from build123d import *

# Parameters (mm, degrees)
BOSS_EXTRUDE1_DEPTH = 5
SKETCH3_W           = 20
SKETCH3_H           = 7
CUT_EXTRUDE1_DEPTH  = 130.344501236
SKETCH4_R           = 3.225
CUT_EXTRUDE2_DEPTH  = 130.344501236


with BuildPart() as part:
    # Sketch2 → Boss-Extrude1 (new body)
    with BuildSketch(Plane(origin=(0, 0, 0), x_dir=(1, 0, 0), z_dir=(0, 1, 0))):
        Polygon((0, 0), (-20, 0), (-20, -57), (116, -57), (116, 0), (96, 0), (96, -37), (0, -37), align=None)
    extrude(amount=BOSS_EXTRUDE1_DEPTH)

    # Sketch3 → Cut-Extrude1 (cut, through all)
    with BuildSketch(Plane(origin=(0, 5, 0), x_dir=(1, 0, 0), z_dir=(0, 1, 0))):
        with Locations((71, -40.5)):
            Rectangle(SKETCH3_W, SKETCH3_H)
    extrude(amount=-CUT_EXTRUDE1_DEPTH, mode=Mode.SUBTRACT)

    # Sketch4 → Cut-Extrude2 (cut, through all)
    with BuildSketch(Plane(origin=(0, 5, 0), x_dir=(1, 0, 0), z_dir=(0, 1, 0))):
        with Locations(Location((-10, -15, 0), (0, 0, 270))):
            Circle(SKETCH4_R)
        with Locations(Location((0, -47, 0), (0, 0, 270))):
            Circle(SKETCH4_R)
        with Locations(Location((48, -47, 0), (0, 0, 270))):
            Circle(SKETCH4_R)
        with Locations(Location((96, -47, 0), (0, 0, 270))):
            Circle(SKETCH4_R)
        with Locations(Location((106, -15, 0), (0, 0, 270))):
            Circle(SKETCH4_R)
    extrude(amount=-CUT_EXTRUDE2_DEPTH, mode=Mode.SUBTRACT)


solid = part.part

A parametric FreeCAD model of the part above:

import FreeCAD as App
import Part
import Sketcher
from FreeCAD import Vector
Q = App.Units.Quantity


def add_polygon(sketch, points):
    """Adds a closed chain of lines whose ends are joined by coincident constraints."""
    first, n = sketch.GeometryCount, len(points)
    for a, b in zip(points, points[1:] + points[:1]):
        sketch.addGeometry(Part.LineSegment(App.Vector(*a, 0), App.Vector(*b, 0)), False)
    for i in range(n):
        sketch.addConstraint(Sketcher.Constraint("Coincident", first + i, 2, first + (i + 1) % n, 1))

doc = App.newDocument("Part")
body = doc.addObject("PartDesign::Body", "Body")

# Sketch on XZ plane
sketch1 = body.newObject("Sketcher::SketchObject", "Sketch")
sketch1.AttachmentSupport = (doc.getObject("XZ_Plane"), [""])
sketch1.MapMode = "FlatFace"
add_polygon(sketch1, [(0, 0), (-20, 0), (-20, 57), (116, 57), (116, 0), (96, 0), (96, 37), (0, 37)])  # lines 0-7
sketch1.addConstraint([
    Sketcher.Constraint("Horizontal", 0),
    Sketcher.Constraint("Vertical", 1),
    Sketcher.Constraint("Horizontal", 2),
    Sketcher.Constraint("Vertical", 3),
    Sketcher.Constraint("Horizontal", 4),
    Sketcher.Constraint("Vertical", 5),
    Sketcher.Constraint("Horizontal", 6),
    Sketcher.Constraint("Vertical", 7),
    Sketcher.Constraint("Coincident", 7, 2, -1, 1),
    Sketcher.Constraint("PointOnObject", 3, 2, -1),
    Sketcher.Constraint("Equal", 0, 4),
    Sketcher.Constraint("DistanceX", 0, 2, 0, 1, Q("20 mm")),
    Sketcher.Constraint("DistanceX", 2, 1, 2, 2, Q("136 mm")),
    Sketcher.Constraint("DistanceY", 1, 1, 1, 2, Q("57 mm")),
    Sketcher.Constraint("DistanceY", 5, 1, 5, 2, Q("37 mm")),
])
pad1 = body.newObject("PartDesign::Pad", "Pad")
pad1.Profile = sketch1
pad1.Length = 5
pad1.Reversed = True

# Sketch on XZ plane
sketch2 = body.newObject("Sketcher::SketchObject", "Sketch001")
sketch2.AttachmentSupport = (doc.getObject("XZ_Plane"), [""])
sketch2.MapMode = "FlatFace"
sketch2.AttachmentOffset = App.Placement(Vector(0, 0, -5), App.Rotation())
add_polygon(sketch2, [(61, 37), (61, 44), (81, 44), (81, 37)])  # lines 0-3
sketch2.addConstraint([
    Sketcher.Constraint("Vertical", 0),
    Sketcher.Constraint("Horizontal", 1),
    Sketcher.Constraint("Vertical", 2),
    Sketcher.Constraint("Horizontal", 3),
    Sketcher.Constraint("DistanceX", 1, 1, 1, 2, Q("20 mm")),
    Sketcher.Constraint("DistanceY", 0, 1, 0, 2, Q("7 mm")),
    Sketcher.Constraint("DistanceX", -1, 1, 0, 2, Q("61 mm")),
    Sketcher.Constraint("DistanceY", -1, 1, 0, 2, Q("44 mm")),
])
pocket1 = body.newObject("PartDesign::Pocket", "Pocket")
pocket1.Profile = sketch2
pocket1.Type = "ThroughAll"
pocket1.Reversed = True

# Sketch on XZ plane
sketch3 = body.newObject("Sketcher::SketchObject", "Sketch002")
sketch3.AttachmentSupport = (doc.getObject("XZ_Plane"), [""])
sketch3.MapMode = "FlatFace"
sketch3.AttachmentOffset = App.Placement(Vector(0, 0, -5), App.Rotation())
sketch3.addGeometry([
    Part.Circle(Vector(-10, 15, 0), Vector(0, 0, 1), 3.2),  # 0
    Part.Circle(Vector(0, 47, 0), Vector(0, 0, 1), 3.2),  # 1
    Part.Circle(Vector(48, 47, 0), Vector(0, 0, 1), 3.2),  # 2
    Part.Circle(Vector(96, 47, 0), Vector(0, 0, 1), 3.2),  # 3
    Part.Circle(Vector(106, 15, 0), Vector(0, 0, 1), 3.2),  # 4
], False)
sketch3.addConstraint([
    Sketcher.Constraint("Equal", 0, 1),
    Sketcher.Constraint("Equal", 1, 2),
    Sketcher.Constraint("Equal", 2, 3),
    Sketcher.Constraint("Equal", 3, 4),
    Sketcher.Constraint("PointOnObject", 1, 3, -2),
    Sketcher.Constraint("Horizontal", 1, 3, 2, 3),
    Sketcher.Constraint("Horizontal", 2, 3, 3, 3),
    Sketcher.Constraint("Horizontal", 0, 3, 4, 3),
    Sketcher.Constraint("Diameter", 0, Q("6.45 mm")),
    Sketcher.Constraint("DistanceX", 0, 3, -1, 1, Q("10 mm")),
    Sketcher.Constraint("DistanceY", -1, 1, 0, 3, Q("15 mm")),
    Sketcher.Constraint("DistanceY", -1, 1, 1, 3, Q("47 mm")),
    Sketcher.Constraint("DistanceX", -1, 1, 2, 3, Q("48 mm")),
    Sketcher.Constraint("DistanceX", -1, 1, 3, 3, Q("96 mm")),
    Sketcher.Constraint("DistanceX", -1, 1, 4, 3, Q("106 mm")),
])
pocket2 = body.newObject("PartDesign::Pocket", "Pocket001")
pocket2.Profile = sketch3
pocket2.Type = "ThroughAll"
pocket2.Reversed = True

doc.recompute()
